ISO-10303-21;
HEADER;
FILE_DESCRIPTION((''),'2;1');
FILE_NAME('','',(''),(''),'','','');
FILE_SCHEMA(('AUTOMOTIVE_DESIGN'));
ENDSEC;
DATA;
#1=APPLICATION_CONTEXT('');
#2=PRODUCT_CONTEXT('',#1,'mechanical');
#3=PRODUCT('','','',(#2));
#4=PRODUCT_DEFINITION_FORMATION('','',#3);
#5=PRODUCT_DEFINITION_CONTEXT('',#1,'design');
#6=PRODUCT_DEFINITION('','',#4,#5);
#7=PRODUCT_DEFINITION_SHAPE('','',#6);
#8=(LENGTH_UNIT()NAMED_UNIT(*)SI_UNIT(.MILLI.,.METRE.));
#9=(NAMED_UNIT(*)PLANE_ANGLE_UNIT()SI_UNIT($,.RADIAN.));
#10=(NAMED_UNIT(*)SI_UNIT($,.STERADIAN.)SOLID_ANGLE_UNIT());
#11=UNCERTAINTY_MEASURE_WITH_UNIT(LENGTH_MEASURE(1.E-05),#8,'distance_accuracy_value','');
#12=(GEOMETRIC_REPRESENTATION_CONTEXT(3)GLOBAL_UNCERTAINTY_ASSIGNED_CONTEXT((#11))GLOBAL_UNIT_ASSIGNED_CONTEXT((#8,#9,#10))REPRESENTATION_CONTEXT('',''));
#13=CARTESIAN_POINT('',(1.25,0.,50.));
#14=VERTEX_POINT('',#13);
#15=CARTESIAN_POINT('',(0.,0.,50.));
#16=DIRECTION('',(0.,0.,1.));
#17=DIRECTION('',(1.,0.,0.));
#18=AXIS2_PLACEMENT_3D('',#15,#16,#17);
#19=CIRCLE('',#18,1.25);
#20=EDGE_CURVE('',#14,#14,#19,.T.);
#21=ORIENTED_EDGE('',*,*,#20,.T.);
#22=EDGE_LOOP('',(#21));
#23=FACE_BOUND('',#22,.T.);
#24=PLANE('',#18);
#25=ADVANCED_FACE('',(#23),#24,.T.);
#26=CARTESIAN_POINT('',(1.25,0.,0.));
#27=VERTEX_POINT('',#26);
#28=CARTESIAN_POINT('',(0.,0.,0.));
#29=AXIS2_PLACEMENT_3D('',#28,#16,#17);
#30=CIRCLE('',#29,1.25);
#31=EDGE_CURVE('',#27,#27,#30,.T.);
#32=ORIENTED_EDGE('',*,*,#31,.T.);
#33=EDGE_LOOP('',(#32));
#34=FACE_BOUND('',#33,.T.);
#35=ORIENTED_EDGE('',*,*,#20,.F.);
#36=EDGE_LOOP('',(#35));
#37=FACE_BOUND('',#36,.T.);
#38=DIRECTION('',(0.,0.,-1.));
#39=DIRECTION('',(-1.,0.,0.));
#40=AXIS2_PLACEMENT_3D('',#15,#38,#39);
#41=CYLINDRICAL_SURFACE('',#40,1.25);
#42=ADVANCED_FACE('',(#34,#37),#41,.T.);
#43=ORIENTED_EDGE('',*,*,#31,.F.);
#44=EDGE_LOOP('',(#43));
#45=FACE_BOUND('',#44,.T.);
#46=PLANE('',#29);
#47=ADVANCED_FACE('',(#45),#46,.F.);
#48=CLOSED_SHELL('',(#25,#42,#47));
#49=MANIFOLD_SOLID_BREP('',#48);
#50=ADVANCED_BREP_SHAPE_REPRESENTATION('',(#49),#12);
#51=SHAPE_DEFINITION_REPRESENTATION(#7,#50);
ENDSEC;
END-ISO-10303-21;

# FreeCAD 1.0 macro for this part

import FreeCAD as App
import Part
import Sketcher
from FreeCAD import Vector

doc = App.newDocument("Part")
body = doc.addObject("PartDesign::Body", "Body")

# Sketch on XY plane
sketch1 = body.newObject("Sketcher::SketchObject", "Sketch")
sketch1.AttachmentSupport = (doc.getObject("XY_Plane"), [""])
sketch1.MapMode = "FlatFace"
sketch1.addGeometry(Part.Circle(Vector(0, 0, 0), Vector(0, 0, 1), 1.2), False)
sketch1.addConstraint(Sketcher.Constraint("Coincident", 0, 3, -1, 1))
sketch1.addConstraint(Sketcher.Constraint("Diameter", 0, 2.5))
pad1 = body.newObject("PartDesign::Pad", "Pad")
pad1.Profile = sketch1
pad1.Length = 50

doc.recompute()
